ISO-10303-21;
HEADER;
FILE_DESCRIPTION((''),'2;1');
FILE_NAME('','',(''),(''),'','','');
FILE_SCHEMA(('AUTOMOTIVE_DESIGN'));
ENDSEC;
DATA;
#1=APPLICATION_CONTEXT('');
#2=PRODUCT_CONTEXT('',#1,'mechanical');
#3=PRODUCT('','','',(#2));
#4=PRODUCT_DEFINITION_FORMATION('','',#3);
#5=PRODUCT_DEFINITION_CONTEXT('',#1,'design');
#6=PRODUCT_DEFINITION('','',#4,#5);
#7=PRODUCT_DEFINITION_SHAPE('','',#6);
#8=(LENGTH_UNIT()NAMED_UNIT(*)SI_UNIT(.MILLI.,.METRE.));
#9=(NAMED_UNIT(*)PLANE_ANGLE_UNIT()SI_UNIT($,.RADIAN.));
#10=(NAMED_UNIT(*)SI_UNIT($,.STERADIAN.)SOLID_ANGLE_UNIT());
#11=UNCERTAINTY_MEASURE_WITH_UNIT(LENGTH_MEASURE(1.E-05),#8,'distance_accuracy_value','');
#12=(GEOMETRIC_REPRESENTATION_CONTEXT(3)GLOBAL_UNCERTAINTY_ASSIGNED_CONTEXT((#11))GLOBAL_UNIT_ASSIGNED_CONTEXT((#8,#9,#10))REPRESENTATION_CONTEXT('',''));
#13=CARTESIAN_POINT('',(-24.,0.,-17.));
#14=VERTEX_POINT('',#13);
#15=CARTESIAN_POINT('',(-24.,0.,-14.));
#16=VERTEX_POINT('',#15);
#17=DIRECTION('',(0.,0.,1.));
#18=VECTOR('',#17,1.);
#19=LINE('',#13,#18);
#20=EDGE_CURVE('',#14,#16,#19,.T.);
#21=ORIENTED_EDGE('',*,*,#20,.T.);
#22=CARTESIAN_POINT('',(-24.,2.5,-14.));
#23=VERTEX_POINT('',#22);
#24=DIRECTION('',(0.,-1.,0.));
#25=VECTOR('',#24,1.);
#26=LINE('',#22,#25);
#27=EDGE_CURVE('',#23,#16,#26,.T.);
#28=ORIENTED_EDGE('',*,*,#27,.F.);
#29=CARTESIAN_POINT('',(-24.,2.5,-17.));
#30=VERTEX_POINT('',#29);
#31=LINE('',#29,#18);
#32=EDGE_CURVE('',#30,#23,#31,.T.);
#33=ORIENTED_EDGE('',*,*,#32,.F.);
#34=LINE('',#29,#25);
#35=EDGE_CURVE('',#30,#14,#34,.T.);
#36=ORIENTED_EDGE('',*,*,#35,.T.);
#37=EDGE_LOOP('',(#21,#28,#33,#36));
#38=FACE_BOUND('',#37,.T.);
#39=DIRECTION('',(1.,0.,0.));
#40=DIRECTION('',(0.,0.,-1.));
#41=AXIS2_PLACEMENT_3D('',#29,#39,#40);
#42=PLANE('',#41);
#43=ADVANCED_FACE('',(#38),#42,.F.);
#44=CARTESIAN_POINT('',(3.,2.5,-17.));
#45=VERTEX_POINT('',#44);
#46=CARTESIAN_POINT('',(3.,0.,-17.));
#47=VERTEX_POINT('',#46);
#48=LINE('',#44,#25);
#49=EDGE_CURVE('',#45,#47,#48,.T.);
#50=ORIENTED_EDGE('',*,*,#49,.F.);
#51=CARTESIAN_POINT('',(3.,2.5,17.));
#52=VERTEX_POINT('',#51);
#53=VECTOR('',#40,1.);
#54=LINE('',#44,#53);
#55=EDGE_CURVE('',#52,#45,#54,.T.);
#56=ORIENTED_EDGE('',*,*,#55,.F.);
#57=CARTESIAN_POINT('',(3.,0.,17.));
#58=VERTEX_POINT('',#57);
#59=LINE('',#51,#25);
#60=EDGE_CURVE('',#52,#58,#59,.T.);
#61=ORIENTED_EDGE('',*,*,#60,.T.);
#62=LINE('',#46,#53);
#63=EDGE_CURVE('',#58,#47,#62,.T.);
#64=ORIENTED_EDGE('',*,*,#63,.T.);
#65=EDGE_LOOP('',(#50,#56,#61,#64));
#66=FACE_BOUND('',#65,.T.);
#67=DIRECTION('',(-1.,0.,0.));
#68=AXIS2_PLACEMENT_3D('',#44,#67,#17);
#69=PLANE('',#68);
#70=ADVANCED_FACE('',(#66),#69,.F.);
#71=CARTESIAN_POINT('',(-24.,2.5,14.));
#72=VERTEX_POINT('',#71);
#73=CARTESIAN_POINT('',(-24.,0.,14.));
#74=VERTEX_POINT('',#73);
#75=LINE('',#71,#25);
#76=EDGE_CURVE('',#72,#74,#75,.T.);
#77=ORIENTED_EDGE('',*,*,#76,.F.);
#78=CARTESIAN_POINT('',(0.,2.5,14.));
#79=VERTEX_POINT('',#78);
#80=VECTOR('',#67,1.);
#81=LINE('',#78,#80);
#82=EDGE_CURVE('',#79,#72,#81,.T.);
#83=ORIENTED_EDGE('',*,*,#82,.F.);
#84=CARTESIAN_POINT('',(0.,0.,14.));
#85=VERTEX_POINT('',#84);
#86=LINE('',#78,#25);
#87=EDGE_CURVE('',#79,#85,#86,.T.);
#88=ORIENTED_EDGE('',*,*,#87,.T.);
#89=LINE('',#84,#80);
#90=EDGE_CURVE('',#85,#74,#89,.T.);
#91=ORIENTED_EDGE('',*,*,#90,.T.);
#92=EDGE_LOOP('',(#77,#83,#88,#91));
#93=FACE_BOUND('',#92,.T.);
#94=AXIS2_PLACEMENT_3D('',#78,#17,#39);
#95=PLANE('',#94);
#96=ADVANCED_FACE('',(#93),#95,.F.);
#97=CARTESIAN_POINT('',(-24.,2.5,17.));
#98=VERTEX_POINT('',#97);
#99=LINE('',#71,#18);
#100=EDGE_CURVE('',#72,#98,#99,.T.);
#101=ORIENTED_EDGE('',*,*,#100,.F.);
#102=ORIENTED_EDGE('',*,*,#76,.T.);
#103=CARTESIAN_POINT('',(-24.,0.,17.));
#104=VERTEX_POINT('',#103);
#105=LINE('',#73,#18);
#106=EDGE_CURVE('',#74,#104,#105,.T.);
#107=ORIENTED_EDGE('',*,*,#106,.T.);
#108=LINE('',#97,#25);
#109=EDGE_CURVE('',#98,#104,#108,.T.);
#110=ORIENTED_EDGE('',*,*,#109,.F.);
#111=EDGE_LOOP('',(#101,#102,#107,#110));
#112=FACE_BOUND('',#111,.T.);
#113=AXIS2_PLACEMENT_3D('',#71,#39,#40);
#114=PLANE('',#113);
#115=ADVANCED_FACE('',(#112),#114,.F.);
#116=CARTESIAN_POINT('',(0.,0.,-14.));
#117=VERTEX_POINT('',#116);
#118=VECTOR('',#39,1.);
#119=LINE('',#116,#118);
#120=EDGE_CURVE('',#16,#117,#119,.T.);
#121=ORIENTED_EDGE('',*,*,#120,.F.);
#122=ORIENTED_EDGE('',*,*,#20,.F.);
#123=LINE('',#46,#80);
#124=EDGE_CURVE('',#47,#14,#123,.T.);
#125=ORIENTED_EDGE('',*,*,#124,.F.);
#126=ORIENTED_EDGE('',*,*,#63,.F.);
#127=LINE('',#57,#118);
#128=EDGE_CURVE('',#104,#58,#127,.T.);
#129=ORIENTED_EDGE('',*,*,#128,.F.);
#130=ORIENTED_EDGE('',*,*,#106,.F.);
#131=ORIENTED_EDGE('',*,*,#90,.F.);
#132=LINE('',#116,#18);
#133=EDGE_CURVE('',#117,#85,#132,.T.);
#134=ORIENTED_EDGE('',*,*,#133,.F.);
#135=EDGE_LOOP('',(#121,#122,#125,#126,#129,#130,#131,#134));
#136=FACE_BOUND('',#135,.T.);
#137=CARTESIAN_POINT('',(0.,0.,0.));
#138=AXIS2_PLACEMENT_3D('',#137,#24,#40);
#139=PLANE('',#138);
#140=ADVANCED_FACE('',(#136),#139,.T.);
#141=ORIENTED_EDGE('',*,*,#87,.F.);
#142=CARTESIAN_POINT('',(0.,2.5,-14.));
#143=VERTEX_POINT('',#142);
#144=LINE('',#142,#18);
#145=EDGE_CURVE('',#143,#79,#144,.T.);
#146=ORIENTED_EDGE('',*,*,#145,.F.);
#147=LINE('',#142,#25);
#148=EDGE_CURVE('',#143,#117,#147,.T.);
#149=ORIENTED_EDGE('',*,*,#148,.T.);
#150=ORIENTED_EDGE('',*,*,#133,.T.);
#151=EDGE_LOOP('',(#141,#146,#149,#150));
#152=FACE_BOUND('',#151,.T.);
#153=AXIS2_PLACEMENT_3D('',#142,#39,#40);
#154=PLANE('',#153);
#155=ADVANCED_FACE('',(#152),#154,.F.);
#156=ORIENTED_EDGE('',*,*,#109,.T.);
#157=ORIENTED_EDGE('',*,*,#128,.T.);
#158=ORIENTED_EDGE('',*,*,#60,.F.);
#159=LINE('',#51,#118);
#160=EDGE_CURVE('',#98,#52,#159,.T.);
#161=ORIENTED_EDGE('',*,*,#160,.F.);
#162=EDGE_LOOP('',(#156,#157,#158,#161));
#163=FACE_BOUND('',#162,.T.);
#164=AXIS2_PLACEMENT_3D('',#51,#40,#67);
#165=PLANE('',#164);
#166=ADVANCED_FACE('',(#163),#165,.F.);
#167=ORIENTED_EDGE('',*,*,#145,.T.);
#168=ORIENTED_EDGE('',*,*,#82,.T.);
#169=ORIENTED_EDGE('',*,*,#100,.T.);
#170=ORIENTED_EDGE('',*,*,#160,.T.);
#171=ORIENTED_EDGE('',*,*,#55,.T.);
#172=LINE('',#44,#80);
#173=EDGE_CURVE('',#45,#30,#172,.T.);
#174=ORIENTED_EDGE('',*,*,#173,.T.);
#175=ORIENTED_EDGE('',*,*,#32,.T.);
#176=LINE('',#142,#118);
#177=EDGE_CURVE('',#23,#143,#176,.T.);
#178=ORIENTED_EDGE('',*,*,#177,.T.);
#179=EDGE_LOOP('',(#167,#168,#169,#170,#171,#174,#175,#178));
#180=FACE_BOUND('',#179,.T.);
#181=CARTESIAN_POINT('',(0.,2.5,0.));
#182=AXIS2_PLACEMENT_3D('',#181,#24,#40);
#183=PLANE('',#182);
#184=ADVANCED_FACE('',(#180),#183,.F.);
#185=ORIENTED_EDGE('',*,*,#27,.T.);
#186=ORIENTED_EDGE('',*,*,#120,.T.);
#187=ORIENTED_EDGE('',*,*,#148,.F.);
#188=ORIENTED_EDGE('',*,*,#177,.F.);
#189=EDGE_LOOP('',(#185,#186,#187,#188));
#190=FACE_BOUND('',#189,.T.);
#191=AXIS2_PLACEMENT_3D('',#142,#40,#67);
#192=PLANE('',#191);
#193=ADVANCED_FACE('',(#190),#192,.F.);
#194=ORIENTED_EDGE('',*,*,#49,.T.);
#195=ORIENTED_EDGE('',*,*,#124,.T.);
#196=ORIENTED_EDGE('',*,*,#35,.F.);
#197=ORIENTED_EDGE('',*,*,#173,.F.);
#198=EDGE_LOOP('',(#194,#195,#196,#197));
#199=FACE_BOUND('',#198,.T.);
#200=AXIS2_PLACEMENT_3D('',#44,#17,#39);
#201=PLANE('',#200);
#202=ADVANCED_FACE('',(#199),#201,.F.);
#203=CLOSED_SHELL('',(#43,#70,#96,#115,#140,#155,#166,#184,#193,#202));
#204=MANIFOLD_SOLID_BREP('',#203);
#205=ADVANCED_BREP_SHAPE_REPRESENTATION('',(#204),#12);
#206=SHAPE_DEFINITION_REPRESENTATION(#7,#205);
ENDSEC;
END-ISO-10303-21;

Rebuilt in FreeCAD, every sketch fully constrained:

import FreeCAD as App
import Part
import Sketcher
Q = App.Units.Quantity

doc = App.newDocument("Part")
params = doc.addObject("Spreadsheet::Sheet", "Params")
for row, (alias, value) in enumerate([
    ("sketch1_width", "24 mm"),
    ("sketch1_width2", "27 mm"),
    ("sketch1_height", "28 mm"),
    ("sketch1_height2", "3 mm"),
    ("pad1_length", "2.5 mm"),
], start=1):
    params.set(f"A{row}", alias)
    params.set(f"B{row}", "=" + value)
    params.setAlias(f"B{row}", alias)

body = doc.addObject("PartDesign::Body", "Body")

# Sketch on XZ plane
sketch1 = body.newObject("Sketcher::SketchObject", "Sketch")
sketch1.AttachmentSupport = (doc.getObject("XZ_Plane"), [""])
sketch1.MapMode = "FlatFace"
sketch1.addGeometry(Part.LineSegment(App.Vector(0, -14, 0), App.Vector(0, 14, 0)), False)
sketch1.addGeometry(Part.LineSegment(App.Vector(0, 14, 0), App.Vector(-24, 14, 0)), False)
sketch1.addGeometry(Part.LineSegment(App.Vector(-24, 14, 0), App.Vector(-24, 17, 0)), False)
sketch1.addGeometry(Part.LineSegment(App.Vector(-24, 17, 0), App.Vector(3, 17, 0)), False)
sketch1.addGeometry(Part.LineSegment(App.Vector(3, 17, 0), App.Vector(3, -17, 0)), False)
sketch1.addGeometry(Part.LineSegment(App.Vector(3, -17, 0), App.Vector(-24, -17, 0)), False)
sketch1.addGeometry(Part.LineSegment(App.Vector(-24, -17, 0), App.Vector(-24, -14, 0)), False)
sketch1.addGeometry(Part.LineSegment(App.Vector(-24, -14, 0), App.Vector(0, -14, 0)), False)
sketch1.addConstraint(Sketcher.Constraint("Coincident", 0, 2, 1, 1))
sketch1.addConstraint(Sketcher.Constraint("Coincident", 1, 2, 2, 1))
sketch1.addConstraint(Sketcher.Constraint("Coincident", 2, 2, 3, 1))
sketch1.addConstraint(Sketcher.Constraint("Coincident", 3, 2, 4, 1))
sketch1.addConstraint(Sketcher.Constraint("Coincident", 4, 2, 5, 1))
sketch1.addConstraint(Sketcher.Constraint("Coincident", 5, 2, 6, 1))
sketch1.addConstraint(Sketcher.Constraint("Coincident", 6, 2, 7, 1))
sketch1.addConstraint(Sketcher.Constraint("Coincident", 7, 2, 0, 1))
sketch1.addConstraint(Sketcher.Constraint("Vertical", 0))
sketch1.addConstraint(Sketcher.Constraint("Horizontal", 1))
sketch1.addConstraint(Sketcher.Constraint("Vertical", 2))
sketch1.addConstraint(Sketcher.Constraint("Horizontal", 3))
sketch1.addConstraint(Sketcher.Constraint("Vertical", 4))
sketch1.addConstraint(Sketcher.Constraint("Horizontal", 5))
sketch1.addConstraint(Sketcher.Constraint("Vertical", 6))
sketch1.addConstraint(Sketcher.Constraint("Horizontal", 7))
sketch1.addConstraint(Sketcher.Constraint("Symmetric", 0, 2, 7, 2, -1, 1))
sketch1.addConstraint(Sketcher.Constraint("Symmetric", 2, 2, 5, 2, -1))
sketch1.addConstraint(Sketcher.Constraint("DistanceX", 1, 2, 1, 1, Q("24 mm")))
sketch1.addConstraint(Sketcher.Constraint("DistanceX", 3, 1, 3, 2, Q("27 mm")))
sketch1.addConstraint(Sketcher.Constraint("DistanceY", 0, 1, 0, 2, Q("28 mm")))
sketch1.addConstraint(Sketcher.Constraint("DistanceY", 2, 1, 2, 2, Q("3 mm")))
sketch1.setExpression("Constraints[18]", "Params.sketch1_width")
sketch1.setExpression("Constraints[19]", "Params.sketch1_width2")
sketch1.setExpression("Constraints[20]", "Params.sketch1_height")
sketch1.setExpression("Constraints[21]", "Params.sketch1_height2")
pad1 = body.newObject("PartDesign::Pad", "Pad")
pad1.Profile = sketch1
pad1.setExpression("Length", "Params.pad1_length")
pad1.Reversed = True

doc.recompute()
